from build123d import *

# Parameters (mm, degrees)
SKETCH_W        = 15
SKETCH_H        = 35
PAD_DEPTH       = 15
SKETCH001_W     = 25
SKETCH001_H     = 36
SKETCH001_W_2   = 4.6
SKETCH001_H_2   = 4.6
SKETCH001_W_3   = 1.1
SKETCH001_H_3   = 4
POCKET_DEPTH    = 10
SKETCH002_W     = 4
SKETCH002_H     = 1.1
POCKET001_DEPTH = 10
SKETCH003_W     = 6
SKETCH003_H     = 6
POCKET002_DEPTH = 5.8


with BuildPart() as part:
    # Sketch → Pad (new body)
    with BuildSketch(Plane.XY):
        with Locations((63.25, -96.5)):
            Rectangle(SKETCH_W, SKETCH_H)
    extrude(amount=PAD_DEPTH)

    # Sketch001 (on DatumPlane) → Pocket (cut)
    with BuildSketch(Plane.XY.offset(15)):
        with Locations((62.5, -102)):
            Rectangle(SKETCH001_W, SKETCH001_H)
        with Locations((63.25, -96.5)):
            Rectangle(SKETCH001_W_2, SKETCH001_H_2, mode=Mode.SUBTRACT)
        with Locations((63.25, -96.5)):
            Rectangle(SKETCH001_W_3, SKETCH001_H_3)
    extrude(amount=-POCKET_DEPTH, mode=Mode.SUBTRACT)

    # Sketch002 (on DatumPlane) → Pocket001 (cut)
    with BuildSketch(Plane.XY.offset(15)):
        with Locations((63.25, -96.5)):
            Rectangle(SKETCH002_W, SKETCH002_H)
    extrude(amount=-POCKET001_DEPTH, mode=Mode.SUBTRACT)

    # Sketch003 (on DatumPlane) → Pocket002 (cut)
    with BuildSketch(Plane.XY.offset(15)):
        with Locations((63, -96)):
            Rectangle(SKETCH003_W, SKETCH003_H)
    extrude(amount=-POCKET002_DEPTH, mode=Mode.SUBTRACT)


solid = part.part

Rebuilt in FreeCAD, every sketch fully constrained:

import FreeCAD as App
import Part
import Sketcher
Q = App.Units.Quantity

doc = App.newDocument("Part")
params = doc.addObject("Spreadsheet::Sheet", "Params")
for row, (alias, value) in enumerate([
    ("sketch1_width", "15 mm"),
    ("sketch1_height", "35 mm"),
    ("pad1_length", "15 mm"),
    ("sketch2_width", "25 mm"),
    ("sketch2_height", "36 mm"),
    ("sketch2_height2", "4 mm"),
    ("sketch2_width2", "4.6 mm"),
    ("sketch2_width3", "1.1 mm"),
    ("pocket1_length", "10 mm"),
    ("sketch3_width", "4 mm"),
    ("sketch3_height", "1.1 mm"),
    ("pocket2_length", "10 mm"),
    ("sketch4_width", "6 mm"),
    ("pocket3_length", "5.8 mm"),
], start=1):
    params.set(f"A{row}", alias)
    params.set(f"B{row}", "=" + value)
    params.setAlias(f"B{row}", alias)

body = doc.addObject("PartDesign::Body", "Body")

# Sketch on XY plane
sketch1 = body.newObject("Sketcher::SketchObject", "Sketch")
sketch1.AttachmentSupport = (doc.getObject("XY_Plane"), [""])
sketch1.MapMode = "FlatFace"
sketch1.addGeometry([
    Part.LineSegment(App.Vector(55.75, -79, 0), App.Vector(55.75, -114, 0)),
    Part.LineSegment(App.Vector(55.75, -114, 0), App.Vector(70.75, -114, 0)),
    Part.LineSegment(App.Vector(70.75, -114, 0), App.Vector(70.75, -79, 0)),
    Part.LineSegment(App.Vector(70.75, -79, 0), App.Vector(55.75, -79, 0)),
], False)
sketch1.addConstraint([
    Sketcher.Constraint("Coincident", 0, 2, 1, 1),
    Sketcher.Constraint("Coincident", 1, 2, 2, 1),
    Sketcher.Constraint("Coincident", 2, 2, 3, 1),
    Sketcher.Constraint("Coincident", 3, 2, 0, 1),
    Sketcher.Constraint("Vertical", 0),
    Sketcher.Constraint("Horizontal", 1),
    Sketcher.Constraint("Vertical", 2),
    Sketcher.Constraint("Horizontal", 3),
    Sketcher.Constraint("DistanceX", 1, 1, 1, 2, Q("15 mm")),
    Sketcher.Constraint("DistanceY", 0, 2, 0, 1, Q("35 mm")),
    Sketcher.Constraint("DistanceY", 0, 2, -1, 1, Q("114 mm")),
    Sketcher.Constraint("DistanceX", -1, 1, 0, 2, Q("55.75 mm")),
])
sketch1.setExpression("Constraints[8]", "Params.sketch1_width")
sketch1.setExpression("Constraints[9]", "Params.sketch1_height")
pad1 = body.newObject("PartDesign::Pad", "Pad")
pad1.Profile = sketch1
pad1.setExpression("Length", "Params.pad1_length")

# Sketch on XY plane
sketch2 = body.newObject("Sketcher::SketchObject", "Sketch001")
sketch2.AttachmentSupport = (doc.getObject("XY_Plane"), [""])
sketch2.MapMode = "FlatFace"
sketch2.AttachmentOffset = App.Placement(App.Vector(0, 0, 15), App.Rotation())
sketch2.addGeometry([
    Part.LineSegment(App.Vector(50, -84, 0), App.Vector(50, -120, 0)),  # 0
    Part.LineSegment(App.Vector(50, -120, 0), App.Vector(75, -120, 0)),  # 1
    Part.LineSegment(App.Vector(75, -120, 0), App.Vector(75, -84, 0)),  # 2
    Part.LineSegment(App.Vector(75, -84, 0), App.Vector(50, -84, 0)),  # 3
    Part.LineSegment(App.Vector(65.55, -98.8, 0), App.Vector(60.95, -98.8, 0)),  # 4
    Part.LineSegment(App.Vector(60.95, -98.8, 0), App.Vector(60.95, -94.2, 0)),  # 5
    Part.LineSegment(App.Vector(60.95, -94.2, 0), App.Vector(65.55, -94.2, 0)),  # 6
    Part.LineSegment(App.Vector(65.55, -94.2, 0), App.Vector(65.55, -98.8, 0)),  # 7
    Part.LineSegment(App.Vector(62.7, -94.5, 0), App.Vector(62.7, -98.5, 0)),  # 8
    Part.LineSegment(App.Vector(62.7, -98.5, 0), App.Vector(63.8, -98.5, 0)),  # 9
    Part.LineSegment(App.Vector(63.8, -98.5, 0), App.Vector(63.8, -94.5, 0)),  # 10
    Part.LineSegment(App.Vector(63.8, -94.5, 0), App.Vector(62.7, -94.5, 0)),  # 11
], False)
sketch2.addConstraint([
    Sketcher.Constraint("Coincident", 0, 2, 1, 1),
    Sketcher.Constraint("Coincident", 1, 2, 2, 1),
    Sketcher.Constraint("Coincident", 2, 2, 3, 1),
    Sketcher.Constraint("Coincident", 3, 2, 0, 1),
    Sketcher.Constraint("Coincident", 4, 2, 5, 1),
    Sketcher.Constraint("Coincident", 5, 2, 6, 1),
    Sketcher.Constraint("Coincident", 6, 2, 7, 1),
    Sketcher.Constraint("Coincident", 7, 2, 4, 1),
    Sketcher.Constraint("Coincident", 8, 2, 9, 1),
    Sketcher.Constraint("Coincident", 9, 2, 10, 1),
    Sketcher.Constraint("Coincident", 10, 2, 11, 1),
    Sketcher.Constraint("Coincident", 11, 2, 8, 1),
    Sketcher.Constraint("Vertical", 0),
    Sketcher.Constraint("Horizontal", 1),
    Sketcher.Constraint("Vertical", 2),
    Sketcher.Constraint("Horizontal", 3),
    Sketcher.Constraint("Horizontal", 4),
    Sketcher.Constraint("Vertical", 5),
    Sketcher.Constraint("Horizontal", 6),
    Sketcher.Constraint("Vertical", 7),
    Sketcher.Constraint("Vertical", 8),
    Sketcher.Constraint("Horizontal", 9),
    Sketcher.Constraint("Vertical", 10),
    Sketcher.Constraint("Horizontal", 11),
    Sketcher.Constraint("Equal", 6, 5),
    Sketcher.Constraint("DistanceX", 1, 1, 1, 2, Q("25 mm")),
    Sketcher.Constraint("DistanceY", 0, 2, 0, 1, Q("36 mm")),
    Sketcher.Constraint("DistanceY", 8, 2, 8, 1, Q("4 mm")),
    Sketcher.Constraint("DistanceX", 4, 2, 4, 1, Q("4.6 mm")),
    Sketcher.Constraint("DistanceX", 9, 1, 9, 2, Q("1.1 mm")),
    Sketcher.Constraint("DistanceX", -1, 1, 0, 2, Q("50 mm")),
    Sketcher.Constraint("DistanceY", 0, 2, -1, 1, Q("120 mm")),
    Sketcher.Constraint("DistanceY", 4, 2, -1, 1, Q("98.8 mm")),
    Sketcher.Constraint("DistanceX", -1, 1, 8, 2, Q("62.7 mm")),
    Sketcher.Constraint("DistanceY", 8, 2, -1, 1, Q("98.5 mm")),
    Sketcher.Constraint("DistanceX", -1, 1, 4, 2, Q("60.95 mm")),
])
sketch2.setExpression("Constraints[25]", "Params.sketch2_width")
sketch2.setExpression("Constraints[26]", "Params.sketch2_height")
sketch2.setExpression("Constraints[27]", "Params.sketch2_height2")
sketch2.setExpression("Constraints[28]", "Params.sketch2_width2")
sketch2.setExpression("Constraints[29]", "Params.sketch2_width3")
pocket1 = body.newObject("PartDesign::Pocket", "Pocket")
pocket1.Profile = sketch2
pocket1.setExpression("Length", "Params.pocket1_length")

# Sketch on XY plane
sketch3 = body.newObject("Sketcher::SketchObject", "Sketch002")
sketch3.AttachmentSupport = (doc.getObject("XY_Plane"), [""])
sketch3.MapMode = "FlatFace"
sketch3.AttachmentOffset = App.Placement(App.Vector(0, 0, 15), App.Rotation())
sketch3.addGeometry([
    Part.LineSegment(App.Vector(61.25, -95.95, 0), App.Vector(61.25, -97.05, 0)),
    Part.LineSegment(App.Vector(61.25, -97.05, 0), App.Vector(65.25, -97.05, 0)),
    Part.LineSegment(App.Vector(65.25, -97.05, 0), App.Vector(65.25, -95.95, 0)),
    Part.LineSegment(App.Vector(65.25, -95.95, 0), App.Vector(61.25, -95.95, 0)),
], False)
sketch3.addConstraint([
    Sketcher.Constraint("Coincident", 0, 2, 1, 1),
    Sketcher.Constraint("Coincident", 1, 2, 2, 1),
    Sketcher.Constraint("Coincident", 2, 2, 3, 1),
    Sketcher.Constraint("Coincident", 3, 2, 0, 1),
    Sketcher.Constraint("Vertical", 0),
    Sketcher.Constraint("Horizontal", 1),
    Sketcher.Constraint("Vertical", 2),
    Sketcher.Constraint("Horizontal", 3),
    Sketcher.Constraint("DistanceX", 1, 1, 1, 2, Q("4 mm")),
    Sketcher.Constraint("DistanceY", 0, 2, 0, 1, Q("1.1 mm")),
    Sketcher.Constraint("DistanceX", -1, 1, 0, 2, Q("61.25 mm")),
    Sketcher.Constraint("DistanceY", 0, 2, -1, 1, Q("97.05 mm")),
])
sketch3.setExpression("Constraints[8]", "Params.sketch3_width")
sketch3.setExpression("Constraints[9]", "Params.sketch3_height")
pocket2 = body.newObject("PartDesign::Pocket", "Pocket001")
pocket2.Profile = sketch3
pocket2.setExpression("Length", "Params.pocket2_length")

# Sketch on XY plane
sketch4 = body.newObject("Sketcher::SketchObject", "Sketch003")
sketch4.AttachmentSupport = (doc.getObject("XY_Plane"), [""])
sketch4.MapMode = "FlatFace"
sketch4.AttachmentOffset = App.Placement(App.Vector(0, 0, 15), App.Rotation())
sketch4.addGeometry([
    Part.LineSegment(App.Vector(60, -93, 0), App.Vector(60, -99, 0)),
    Part.LineSegment(App.Vector(60, -99, 0), App.Vector(66, -99, 0)),
    Part.LineSegment(App.Vector(66, -99, 0), App.Vector(66, -93, 0)),
    Part.LineSegment(App.Vector(66, -93, 0), App.Vector(60, -93, 0)),
], False)
sketch4.addConstraint([
    Sketcher.Constraint("Coincident", 0, 2, 1, 1),
    Sketcher.Constraint("Coincident", 1, 2, 2, 1),
    Sketcher.Constraint("Coincident", 2, 2, 3, 1),
    Sketcher.Constraint("Coincident", 3, 2, 0, 1),
    Sketcher.Constraint("Vertical", 0),
    Sketcher.Constraint("Horizontal", 1),
    Sketcher.Constraint("Vertical", 2),
    Sketcher.Constraint("Horizontal", 3),
    Sketcher.Constraint("Equal", 3, 0),
    Sketcher.Constraint("DistanceX", 1, 1, 1, 2, Q("6 mm")),
    Sketcher.Constraint("DistanceX", -1, 1, 0, 2, Q("60 mm")),
    Sketcher.Constraint("DistanceY", 0, 2, -1, 1, Q("99 mm")),
])
sketch4.setExpression("Constraints[9]", "Params.sketch4_width")
pocket3 = body.newObject("PartDesign::Pocket", "Pocket002")
pocket3.Profile = sketch4
pocket3.setExpression("Length", "Params.pocket3_length")

doc.recompute()
